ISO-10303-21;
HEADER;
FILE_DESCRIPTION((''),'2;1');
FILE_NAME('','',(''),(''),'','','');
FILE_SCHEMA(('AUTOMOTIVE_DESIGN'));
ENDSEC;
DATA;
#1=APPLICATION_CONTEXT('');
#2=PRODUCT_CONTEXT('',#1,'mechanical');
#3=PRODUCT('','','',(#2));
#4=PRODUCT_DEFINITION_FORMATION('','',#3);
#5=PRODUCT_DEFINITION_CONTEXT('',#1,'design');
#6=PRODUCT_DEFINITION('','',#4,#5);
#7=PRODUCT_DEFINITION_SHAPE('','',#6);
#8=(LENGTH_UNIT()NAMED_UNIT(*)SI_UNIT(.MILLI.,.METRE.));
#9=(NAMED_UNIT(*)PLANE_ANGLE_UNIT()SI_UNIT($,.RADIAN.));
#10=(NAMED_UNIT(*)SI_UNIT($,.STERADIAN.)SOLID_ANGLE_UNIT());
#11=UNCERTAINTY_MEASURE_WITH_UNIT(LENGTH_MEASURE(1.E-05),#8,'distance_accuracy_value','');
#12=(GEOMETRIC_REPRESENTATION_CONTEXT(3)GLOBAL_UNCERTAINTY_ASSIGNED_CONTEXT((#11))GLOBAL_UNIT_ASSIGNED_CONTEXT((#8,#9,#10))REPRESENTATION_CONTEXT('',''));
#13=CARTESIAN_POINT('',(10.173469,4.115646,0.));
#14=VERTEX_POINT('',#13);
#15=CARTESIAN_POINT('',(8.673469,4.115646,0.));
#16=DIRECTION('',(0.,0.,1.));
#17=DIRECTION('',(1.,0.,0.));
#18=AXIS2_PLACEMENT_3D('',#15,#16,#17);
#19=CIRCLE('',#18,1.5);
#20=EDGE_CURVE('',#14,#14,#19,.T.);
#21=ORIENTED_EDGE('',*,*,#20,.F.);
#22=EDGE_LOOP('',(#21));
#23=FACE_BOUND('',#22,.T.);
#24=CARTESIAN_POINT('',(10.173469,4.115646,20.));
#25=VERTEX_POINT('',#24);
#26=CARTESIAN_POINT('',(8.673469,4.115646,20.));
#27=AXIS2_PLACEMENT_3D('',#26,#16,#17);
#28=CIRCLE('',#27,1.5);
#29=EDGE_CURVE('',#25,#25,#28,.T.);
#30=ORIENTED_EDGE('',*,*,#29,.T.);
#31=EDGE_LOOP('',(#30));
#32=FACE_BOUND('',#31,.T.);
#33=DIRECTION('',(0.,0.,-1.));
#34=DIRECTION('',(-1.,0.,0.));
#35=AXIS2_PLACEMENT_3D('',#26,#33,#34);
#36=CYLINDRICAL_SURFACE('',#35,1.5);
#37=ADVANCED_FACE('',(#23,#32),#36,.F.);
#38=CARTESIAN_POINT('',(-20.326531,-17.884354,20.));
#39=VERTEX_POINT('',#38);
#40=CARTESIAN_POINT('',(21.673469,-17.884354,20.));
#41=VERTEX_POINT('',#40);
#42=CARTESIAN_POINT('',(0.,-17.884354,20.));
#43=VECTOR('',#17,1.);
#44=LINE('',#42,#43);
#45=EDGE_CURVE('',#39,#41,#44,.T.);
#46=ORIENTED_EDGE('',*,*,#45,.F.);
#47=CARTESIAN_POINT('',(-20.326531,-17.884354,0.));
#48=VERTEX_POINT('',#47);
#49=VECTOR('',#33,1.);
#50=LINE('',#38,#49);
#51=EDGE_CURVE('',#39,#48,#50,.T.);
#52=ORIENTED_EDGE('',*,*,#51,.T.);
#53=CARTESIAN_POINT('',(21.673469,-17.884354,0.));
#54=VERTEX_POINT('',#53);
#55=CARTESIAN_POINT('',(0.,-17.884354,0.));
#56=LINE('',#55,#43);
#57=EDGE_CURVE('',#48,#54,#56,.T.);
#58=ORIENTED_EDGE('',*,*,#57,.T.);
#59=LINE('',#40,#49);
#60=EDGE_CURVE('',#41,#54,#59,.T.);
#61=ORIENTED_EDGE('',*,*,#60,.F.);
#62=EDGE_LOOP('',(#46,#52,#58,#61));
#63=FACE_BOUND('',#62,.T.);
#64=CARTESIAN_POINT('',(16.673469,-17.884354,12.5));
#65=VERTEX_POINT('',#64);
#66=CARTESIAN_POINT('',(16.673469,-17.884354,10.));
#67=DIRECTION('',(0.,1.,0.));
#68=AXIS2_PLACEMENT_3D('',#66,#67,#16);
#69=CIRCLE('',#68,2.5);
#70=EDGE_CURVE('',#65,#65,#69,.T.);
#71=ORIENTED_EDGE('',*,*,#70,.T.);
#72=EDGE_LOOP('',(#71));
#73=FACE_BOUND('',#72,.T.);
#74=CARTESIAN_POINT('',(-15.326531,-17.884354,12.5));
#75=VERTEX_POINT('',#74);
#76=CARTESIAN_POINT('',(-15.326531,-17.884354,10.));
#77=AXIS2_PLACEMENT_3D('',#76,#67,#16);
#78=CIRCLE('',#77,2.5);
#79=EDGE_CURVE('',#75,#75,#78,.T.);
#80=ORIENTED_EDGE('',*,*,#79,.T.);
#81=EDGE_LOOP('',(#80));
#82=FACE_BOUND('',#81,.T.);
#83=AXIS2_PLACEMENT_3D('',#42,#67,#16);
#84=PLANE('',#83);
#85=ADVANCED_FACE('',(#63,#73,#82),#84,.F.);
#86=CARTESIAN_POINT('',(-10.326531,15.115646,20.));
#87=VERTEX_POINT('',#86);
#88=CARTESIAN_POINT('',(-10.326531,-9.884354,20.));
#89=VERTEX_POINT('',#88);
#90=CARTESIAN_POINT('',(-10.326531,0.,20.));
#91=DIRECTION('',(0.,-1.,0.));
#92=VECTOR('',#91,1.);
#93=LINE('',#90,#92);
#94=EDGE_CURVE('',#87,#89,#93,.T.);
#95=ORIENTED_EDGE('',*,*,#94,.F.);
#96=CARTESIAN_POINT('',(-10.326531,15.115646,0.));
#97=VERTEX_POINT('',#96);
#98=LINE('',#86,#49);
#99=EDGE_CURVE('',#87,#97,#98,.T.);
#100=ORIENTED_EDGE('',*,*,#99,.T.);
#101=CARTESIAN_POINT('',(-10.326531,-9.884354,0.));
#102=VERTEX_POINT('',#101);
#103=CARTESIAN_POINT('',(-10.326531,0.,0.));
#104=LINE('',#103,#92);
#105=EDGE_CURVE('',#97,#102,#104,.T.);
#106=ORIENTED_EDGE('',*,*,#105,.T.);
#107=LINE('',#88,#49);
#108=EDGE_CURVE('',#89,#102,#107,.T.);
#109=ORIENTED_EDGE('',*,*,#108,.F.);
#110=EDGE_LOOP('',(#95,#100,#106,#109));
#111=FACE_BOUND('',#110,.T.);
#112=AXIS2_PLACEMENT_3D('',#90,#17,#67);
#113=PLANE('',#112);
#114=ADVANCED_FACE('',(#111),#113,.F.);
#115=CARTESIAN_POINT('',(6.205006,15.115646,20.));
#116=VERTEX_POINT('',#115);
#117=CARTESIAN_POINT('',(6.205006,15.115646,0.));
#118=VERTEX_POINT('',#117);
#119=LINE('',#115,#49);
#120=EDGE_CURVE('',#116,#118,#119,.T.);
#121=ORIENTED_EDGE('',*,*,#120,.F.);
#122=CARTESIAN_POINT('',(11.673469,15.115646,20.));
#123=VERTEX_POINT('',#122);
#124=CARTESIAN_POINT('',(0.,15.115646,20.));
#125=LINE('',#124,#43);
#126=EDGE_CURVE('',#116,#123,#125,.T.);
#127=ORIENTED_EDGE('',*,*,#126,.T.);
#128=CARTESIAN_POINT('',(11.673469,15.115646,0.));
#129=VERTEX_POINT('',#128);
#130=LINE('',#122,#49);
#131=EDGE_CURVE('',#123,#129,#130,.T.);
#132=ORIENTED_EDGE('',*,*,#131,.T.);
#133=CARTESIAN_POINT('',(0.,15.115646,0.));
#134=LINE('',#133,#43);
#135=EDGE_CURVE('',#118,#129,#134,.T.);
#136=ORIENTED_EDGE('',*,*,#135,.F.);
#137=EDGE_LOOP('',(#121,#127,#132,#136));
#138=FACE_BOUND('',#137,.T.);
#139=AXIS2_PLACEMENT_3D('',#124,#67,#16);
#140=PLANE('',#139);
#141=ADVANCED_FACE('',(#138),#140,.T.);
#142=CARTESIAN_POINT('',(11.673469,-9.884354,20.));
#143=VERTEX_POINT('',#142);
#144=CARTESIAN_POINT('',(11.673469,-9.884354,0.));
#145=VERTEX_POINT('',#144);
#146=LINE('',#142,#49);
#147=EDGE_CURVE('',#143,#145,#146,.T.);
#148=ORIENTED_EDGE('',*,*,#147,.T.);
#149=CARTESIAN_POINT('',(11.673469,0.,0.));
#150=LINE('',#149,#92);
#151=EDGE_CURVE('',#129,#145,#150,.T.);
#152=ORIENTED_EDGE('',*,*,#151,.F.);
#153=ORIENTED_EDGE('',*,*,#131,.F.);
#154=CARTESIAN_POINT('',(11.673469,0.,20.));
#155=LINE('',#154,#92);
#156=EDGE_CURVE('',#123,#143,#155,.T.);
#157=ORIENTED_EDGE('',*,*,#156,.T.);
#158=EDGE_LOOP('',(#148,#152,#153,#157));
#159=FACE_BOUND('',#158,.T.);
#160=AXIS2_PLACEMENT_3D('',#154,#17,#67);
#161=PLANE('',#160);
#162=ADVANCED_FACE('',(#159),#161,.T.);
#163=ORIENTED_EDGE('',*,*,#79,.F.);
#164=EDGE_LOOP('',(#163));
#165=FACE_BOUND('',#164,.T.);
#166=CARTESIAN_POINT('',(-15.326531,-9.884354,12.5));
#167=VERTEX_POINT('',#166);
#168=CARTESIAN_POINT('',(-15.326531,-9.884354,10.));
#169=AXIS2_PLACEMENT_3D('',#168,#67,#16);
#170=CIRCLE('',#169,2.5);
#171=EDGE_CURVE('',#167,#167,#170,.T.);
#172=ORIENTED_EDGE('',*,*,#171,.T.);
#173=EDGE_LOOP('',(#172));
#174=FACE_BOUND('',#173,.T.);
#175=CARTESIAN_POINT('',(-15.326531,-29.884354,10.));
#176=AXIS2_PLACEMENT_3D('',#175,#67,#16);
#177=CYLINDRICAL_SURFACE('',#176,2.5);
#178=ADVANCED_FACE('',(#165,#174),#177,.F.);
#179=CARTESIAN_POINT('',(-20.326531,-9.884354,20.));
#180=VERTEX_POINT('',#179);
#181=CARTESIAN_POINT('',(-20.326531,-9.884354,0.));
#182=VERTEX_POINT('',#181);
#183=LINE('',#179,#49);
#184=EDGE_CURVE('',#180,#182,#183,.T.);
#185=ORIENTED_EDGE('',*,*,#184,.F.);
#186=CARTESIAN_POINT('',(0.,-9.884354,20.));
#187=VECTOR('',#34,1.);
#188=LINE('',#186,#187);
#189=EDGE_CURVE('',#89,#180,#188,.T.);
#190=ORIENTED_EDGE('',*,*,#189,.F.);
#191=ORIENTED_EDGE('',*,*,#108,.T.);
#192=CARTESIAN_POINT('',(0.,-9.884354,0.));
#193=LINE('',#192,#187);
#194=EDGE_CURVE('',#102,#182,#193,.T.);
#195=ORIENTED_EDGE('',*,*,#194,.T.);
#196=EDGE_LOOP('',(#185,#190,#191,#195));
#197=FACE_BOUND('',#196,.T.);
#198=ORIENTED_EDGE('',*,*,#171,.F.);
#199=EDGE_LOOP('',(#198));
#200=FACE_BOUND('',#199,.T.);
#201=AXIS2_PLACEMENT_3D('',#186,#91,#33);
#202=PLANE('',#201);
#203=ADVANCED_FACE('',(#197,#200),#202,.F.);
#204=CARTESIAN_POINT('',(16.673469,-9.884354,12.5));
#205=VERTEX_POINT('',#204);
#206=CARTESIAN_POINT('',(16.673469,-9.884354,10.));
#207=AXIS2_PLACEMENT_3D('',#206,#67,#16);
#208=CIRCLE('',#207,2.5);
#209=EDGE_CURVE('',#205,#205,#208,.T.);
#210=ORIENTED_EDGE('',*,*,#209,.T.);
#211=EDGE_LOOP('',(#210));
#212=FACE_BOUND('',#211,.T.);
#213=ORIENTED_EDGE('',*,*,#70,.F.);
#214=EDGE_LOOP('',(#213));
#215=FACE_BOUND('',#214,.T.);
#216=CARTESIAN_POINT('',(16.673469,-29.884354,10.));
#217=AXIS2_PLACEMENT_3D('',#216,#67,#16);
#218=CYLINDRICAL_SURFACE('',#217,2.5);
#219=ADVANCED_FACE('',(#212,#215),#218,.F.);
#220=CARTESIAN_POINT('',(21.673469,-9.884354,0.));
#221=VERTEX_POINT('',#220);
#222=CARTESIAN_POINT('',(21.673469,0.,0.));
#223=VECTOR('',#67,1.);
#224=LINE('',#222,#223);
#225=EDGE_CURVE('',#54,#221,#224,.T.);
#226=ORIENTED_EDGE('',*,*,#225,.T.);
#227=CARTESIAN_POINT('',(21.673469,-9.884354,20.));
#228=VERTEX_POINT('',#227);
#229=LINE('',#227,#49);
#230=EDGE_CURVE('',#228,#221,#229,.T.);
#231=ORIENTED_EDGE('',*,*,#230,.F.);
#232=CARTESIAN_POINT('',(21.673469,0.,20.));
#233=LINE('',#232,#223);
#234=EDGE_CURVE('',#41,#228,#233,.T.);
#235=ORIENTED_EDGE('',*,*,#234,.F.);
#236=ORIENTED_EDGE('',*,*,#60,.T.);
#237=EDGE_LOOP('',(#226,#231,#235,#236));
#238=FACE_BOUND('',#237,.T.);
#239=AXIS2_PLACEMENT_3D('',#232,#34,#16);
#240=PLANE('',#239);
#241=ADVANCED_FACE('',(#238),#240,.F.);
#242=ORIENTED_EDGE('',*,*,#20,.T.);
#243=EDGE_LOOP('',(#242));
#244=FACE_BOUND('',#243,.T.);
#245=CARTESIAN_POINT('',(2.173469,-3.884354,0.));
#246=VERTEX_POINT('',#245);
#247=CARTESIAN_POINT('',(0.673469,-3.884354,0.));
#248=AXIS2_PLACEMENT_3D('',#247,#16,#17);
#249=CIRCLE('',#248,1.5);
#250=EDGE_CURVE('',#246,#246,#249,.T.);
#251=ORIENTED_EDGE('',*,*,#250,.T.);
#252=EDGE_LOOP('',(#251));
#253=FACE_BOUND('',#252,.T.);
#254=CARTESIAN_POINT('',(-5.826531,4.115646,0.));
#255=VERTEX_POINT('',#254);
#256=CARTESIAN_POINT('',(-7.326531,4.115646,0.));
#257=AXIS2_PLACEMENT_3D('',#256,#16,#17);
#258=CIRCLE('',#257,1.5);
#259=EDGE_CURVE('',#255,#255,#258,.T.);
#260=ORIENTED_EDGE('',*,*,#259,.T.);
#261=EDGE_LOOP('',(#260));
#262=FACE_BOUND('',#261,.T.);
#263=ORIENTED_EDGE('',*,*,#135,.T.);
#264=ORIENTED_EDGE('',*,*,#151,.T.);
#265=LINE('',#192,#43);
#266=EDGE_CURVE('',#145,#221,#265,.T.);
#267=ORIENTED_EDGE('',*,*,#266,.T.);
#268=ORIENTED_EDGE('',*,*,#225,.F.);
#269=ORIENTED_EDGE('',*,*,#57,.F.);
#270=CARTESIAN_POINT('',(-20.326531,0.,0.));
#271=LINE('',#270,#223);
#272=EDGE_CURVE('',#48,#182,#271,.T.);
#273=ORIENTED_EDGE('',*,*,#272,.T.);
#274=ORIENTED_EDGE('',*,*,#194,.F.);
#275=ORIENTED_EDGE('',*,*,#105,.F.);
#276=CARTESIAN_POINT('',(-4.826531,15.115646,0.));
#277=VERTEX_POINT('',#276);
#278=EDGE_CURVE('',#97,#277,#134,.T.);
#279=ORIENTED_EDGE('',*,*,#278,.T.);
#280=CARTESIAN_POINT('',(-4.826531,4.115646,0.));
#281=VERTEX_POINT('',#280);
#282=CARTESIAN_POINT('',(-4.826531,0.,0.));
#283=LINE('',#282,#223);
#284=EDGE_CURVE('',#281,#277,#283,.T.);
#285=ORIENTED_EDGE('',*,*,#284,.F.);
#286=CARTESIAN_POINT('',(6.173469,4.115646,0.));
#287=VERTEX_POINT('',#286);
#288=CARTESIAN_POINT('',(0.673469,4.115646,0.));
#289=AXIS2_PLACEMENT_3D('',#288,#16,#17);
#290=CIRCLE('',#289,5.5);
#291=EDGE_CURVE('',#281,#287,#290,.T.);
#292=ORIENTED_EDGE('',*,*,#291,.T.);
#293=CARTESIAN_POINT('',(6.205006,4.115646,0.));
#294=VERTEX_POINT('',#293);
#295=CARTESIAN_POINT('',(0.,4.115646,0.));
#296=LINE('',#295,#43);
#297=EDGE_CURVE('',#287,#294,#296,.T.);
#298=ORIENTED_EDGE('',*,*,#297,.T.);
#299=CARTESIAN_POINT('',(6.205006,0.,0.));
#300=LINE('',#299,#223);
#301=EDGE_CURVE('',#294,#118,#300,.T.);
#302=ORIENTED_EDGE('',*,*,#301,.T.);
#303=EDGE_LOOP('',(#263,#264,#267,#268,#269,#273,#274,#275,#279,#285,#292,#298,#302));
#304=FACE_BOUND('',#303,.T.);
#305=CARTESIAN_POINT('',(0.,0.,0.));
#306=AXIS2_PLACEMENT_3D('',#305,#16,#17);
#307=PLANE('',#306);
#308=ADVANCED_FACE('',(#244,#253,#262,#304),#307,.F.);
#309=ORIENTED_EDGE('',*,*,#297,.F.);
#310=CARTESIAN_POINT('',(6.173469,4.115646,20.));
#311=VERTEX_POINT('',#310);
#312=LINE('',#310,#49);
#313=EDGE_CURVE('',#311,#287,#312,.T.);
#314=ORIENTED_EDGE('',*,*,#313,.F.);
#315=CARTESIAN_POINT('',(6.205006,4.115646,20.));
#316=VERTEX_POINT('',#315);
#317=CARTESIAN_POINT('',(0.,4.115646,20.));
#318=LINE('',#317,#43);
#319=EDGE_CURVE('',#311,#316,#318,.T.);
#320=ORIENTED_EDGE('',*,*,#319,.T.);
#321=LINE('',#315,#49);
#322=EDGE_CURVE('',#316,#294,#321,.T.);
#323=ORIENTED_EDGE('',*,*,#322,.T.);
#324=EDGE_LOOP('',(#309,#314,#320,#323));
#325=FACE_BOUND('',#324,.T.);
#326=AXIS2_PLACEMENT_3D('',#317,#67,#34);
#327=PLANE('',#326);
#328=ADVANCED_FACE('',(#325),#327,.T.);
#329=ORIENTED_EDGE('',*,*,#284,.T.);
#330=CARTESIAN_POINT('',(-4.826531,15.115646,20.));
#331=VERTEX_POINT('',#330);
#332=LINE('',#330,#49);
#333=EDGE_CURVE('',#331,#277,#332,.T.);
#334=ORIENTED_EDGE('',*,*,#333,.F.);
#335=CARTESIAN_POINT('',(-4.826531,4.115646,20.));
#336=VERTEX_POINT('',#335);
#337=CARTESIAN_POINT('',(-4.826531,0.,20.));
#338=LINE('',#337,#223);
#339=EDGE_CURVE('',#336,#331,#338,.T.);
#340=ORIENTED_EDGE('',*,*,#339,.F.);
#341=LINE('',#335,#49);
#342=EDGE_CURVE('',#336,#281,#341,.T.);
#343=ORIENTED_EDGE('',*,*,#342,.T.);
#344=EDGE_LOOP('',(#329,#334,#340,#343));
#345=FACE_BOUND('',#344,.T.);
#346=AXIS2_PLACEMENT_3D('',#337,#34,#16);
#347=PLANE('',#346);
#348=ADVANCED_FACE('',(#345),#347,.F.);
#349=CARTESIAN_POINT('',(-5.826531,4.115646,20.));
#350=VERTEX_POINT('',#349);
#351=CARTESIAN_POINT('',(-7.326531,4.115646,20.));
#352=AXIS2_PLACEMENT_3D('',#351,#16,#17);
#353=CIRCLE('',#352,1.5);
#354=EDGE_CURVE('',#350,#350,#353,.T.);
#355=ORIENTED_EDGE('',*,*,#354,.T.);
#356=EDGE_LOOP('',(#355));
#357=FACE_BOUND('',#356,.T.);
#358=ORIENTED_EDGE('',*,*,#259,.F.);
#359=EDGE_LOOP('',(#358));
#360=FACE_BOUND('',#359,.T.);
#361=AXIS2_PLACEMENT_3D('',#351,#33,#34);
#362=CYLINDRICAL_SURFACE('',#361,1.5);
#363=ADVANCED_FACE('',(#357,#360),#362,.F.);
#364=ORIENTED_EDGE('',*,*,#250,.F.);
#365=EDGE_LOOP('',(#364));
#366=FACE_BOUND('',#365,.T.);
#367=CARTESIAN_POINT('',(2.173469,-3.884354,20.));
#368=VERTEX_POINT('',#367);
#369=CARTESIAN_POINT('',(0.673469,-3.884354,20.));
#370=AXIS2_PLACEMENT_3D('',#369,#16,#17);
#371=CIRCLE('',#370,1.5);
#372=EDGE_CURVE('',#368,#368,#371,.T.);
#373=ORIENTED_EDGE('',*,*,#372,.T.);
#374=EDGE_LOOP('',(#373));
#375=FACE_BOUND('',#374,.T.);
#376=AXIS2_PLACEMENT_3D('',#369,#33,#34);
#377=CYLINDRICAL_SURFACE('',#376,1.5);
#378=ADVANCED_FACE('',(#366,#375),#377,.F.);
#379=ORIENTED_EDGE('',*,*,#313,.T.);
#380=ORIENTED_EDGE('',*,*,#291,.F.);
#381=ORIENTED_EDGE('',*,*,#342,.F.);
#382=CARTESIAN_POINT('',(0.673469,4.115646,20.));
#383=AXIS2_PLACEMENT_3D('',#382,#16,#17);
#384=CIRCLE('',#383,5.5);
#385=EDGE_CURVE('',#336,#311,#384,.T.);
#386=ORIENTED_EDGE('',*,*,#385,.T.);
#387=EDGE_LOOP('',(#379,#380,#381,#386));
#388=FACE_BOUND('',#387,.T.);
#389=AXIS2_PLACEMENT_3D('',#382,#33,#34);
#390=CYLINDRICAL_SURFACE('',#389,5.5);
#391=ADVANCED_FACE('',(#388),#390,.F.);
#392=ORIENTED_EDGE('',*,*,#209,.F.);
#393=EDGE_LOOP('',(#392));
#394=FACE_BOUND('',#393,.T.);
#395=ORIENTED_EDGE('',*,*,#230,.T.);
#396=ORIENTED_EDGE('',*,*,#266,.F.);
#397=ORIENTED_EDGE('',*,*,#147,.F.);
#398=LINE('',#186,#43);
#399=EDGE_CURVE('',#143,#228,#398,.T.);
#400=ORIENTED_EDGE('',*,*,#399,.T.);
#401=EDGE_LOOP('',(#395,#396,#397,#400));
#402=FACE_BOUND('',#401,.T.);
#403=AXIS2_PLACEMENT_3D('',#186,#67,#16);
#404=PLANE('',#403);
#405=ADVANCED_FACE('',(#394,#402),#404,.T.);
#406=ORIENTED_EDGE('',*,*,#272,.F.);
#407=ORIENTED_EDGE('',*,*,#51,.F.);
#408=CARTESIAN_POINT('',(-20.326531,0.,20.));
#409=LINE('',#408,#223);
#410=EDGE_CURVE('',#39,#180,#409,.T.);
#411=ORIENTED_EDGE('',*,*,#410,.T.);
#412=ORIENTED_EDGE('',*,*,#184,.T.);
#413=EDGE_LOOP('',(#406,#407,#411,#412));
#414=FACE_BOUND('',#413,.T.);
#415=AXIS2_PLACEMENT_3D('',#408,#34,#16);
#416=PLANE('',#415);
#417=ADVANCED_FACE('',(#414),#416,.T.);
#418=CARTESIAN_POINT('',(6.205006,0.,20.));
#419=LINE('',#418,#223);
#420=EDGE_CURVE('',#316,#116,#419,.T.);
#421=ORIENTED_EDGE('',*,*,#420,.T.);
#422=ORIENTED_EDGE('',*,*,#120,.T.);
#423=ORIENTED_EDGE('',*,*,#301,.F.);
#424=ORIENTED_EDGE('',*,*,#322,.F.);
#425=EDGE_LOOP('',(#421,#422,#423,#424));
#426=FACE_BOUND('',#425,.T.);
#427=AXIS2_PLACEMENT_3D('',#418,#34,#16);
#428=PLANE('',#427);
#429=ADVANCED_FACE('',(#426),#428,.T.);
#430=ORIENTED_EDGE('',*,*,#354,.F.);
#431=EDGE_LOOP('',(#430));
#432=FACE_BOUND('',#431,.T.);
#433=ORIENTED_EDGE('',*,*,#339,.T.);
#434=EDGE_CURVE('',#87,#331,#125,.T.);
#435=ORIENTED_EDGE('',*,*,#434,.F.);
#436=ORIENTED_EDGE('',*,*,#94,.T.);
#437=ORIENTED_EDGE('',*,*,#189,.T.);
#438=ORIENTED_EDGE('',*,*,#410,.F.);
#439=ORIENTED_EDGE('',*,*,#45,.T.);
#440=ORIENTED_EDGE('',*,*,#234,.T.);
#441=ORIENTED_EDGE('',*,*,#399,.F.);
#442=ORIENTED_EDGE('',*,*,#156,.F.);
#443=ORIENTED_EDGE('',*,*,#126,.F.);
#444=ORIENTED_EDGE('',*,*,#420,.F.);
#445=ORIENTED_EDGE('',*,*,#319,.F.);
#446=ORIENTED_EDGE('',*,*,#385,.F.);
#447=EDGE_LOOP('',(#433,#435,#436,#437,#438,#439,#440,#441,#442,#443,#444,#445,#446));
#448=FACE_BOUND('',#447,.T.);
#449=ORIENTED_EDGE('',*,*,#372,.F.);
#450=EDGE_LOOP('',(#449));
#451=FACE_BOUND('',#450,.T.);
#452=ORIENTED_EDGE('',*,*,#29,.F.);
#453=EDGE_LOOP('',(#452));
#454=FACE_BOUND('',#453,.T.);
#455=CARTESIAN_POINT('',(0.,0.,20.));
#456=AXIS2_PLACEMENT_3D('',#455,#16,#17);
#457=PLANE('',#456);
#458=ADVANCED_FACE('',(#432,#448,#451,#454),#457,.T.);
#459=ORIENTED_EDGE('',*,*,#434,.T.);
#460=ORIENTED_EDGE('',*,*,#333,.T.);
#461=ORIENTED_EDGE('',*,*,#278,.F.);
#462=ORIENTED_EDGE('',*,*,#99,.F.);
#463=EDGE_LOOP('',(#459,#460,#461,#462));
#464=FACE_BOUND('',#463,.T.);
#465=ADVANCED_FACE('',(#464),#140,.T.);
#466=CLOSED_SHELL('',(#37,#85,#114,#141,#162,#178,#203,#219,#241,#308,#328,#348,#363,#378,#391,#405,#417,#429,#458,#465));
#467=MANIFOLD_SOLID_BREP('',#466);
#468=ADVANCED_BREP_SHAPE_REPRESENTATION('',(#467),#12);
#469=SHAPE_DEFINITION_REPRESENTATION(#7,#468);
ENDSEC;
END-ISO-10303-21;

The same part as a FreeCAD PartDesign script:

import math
import FreeCAD as App
import Part
import Sketcher

V = App.Vector

doc = App.newDocument("Part")
body = doc.addObject("PartDesign::Body", "Body")

# Sketch on XY plane
sketch1 = body.newObject("Sketcher::SketchObject", "Sketch")
sketch1.AttachmentSupport = (doc.getObject("XY_Plane"), [""])
sketch1.MapMode = "FlatFace"
sketch1.addGeometry([
    Part.LineSegment(V(-4.827, 15.116, 0), V(-10.327, 15.116, 0)),  # 0
    Part.LineSegment(V(-10.327, 15.116, 0), V(-10.327, -9.884, 0)),  # 1
    Part.LineSegment(V(-10.327, -9.884, 0), V(-20.327, -9.884, 0)),  # 2
    Part.LineSegment(V(-20.327, -9.884, 0), V(-20.327, -17.884, 0)),  # 3
    Part.LineSegment(V(-20.327, -17.884, 0), V(21.673, -17.884, 0)),  # 4
    Part.LineSegment(V(21.673, -17.884, 0), V(21.673, -9.884, 0)),  # 5
    Part.LineSegment(V(21.673, -9.884, 0), V(11.673, -9.884, 0)),  # 6
    Part.LineSegment(V(11.673, -9.884, 0), V(11.673, 15.116, 0)),  # 7
    Part.LineSegment(V(11.673, 15.116, 0), V(6.205, 15.116, 0)),  # 8
    Part.LineSegment(V(6.205, 15.116, 0), V(6.205, 4.116, 0)),  # 9
    Part.LineSegment(V(6.205, 4.116, 0), V(6.173, 4.116, 0)),  # 10
    Part.ArcOfCircle(Part.Circle(V(0.673, 4.116, 0), V(0, 0, 1), 5.5), math.radians(180), math.radians(360)),  # 11
    Part.LineSegment(V(-4.827, 4.116, 0), V(-4.827, 15.116, 0)),  # 12
    Part.Circle(V(0.673, -3.884, 0), V(0, 0, 1), 1.5),  # 13
    Part.Circle(V(-7.327, 4.116, 0), V(0, 0, 1), 1.5),  # 14
    Part.Circle(V(8.673, 4.116, 0), V(0, 0, 1), 1.5),  # 15
], False)
sketch1.addConstraint([
    Sketcher.Constraint("Coincident", 0, 2, 1, 1),
    Sketcher.Constraint("Coincident", 1, 2, 2, 1),
    Sketcher.Constraint("Coincident", 2, 2, 3, 1),
    Sketcher.Constraint("Coincident", 3, 2, 4, 1),
    Sketcher.Constraint("Coincident", 4, 2, 5, 1),
    Sketcher.Constraint("Coincident", 5, 2, 6, 1),
    Sketcher.Constraint("Coincident", 6, 2, 7, 1),
    Sketcher.Constraint("Coincident", 7, 2, 8, 1),
    Sketcher.Constraint("Coincident", 8, 2, 9, 1),
    Sketcher.Constraint("Coincident", 9, 2, 10, 1),
    Sketcher.Constraint("Coincident", 10, 2, 11, 2),
    Sketcher.Constraint("Tangent", 11, 1, 12, 1),
    Sketcher.Constraint("Coincident", 12, 2, 0, 1),
    Sketcher.Constraint("Horizontal", 0),
    Sketcher.Constraint("Vertical", 1),
    Sketcher.Constraint("Horizontal", 2),
    Sketcher.Constraint("Vertical", 3),
    Sketcher.Constraint("Horizontal", 4),
    Sketcher.Constraint("Vertical", 5),
    Sketcher.Constraint("Horizontal", 6),
    Sketcher.Constraint("Vertical", 7),
    Sketcher.Constraint("Horizontal", 8),
    Sketcher.Constraint("Vertical", 9),
    Sketcher.Constraint("Horizontal", 10),
    Sketcher.Constraint("Vertical", 12),
    Sketcher.Constraint("Equal", 13, 14),
    Sketcher.Constraint("Equal", 14, 15),
    Sketcher.Constraint("Horizontal", 11, 3, 14, 3),
    Sketcher.Constraint("Horizontal", 14, 3, 15, 3),
    Sketcher.Constraint("Horizontal", 2, 2, 5, 2),
    Sketcher.Constraint("Horizontal", 0, 2, 7, 2),
    Sketcher.Constraint("Horizontal", 15, 3, 9, 2),
    Sketcher.Constraint("Vertical", 11, 3, 13, 3),
    Sketcher.Constraint("Equal", 2, 6),
    Sketcher.Constraint("Diameter", 13, 3.0),
    Sketcher.Constraint("Radius", 11, 5.5),
    Sketcher.Constraint("DistanceX", 2, 2, 2, 1, 10.0),
    Sketcher.Constraint("DistanceX", 4, 1, 4, 2, 42.0),
    Sketcher.Constraint("DistanceY", 1, 2, 1, 1, 25.0),
    Sketcher.Constraint("DistanceY", 3, 2, 3, 1, 8.0),
    Sketcher.Constraint("DistanceY", 9, 2, 9, 1, 11.0),
    Sketcher.Constraint("DistanceX", 0, 2, 0, 1, 5.5),
    Sketcher.Constraint("DistanceY", 13, 3, 11, 3, 8.0),
    Sketcher.Constraint("DistanceX", 14, 3, 11, 3, 8.0),
    Sketcher.Constraint("DistanceX", 11, 3, 15, 3, 8.0),
    Sketcher.Constraint("DistanceX", 8, 2, 8, 1, 5.468463),
    Sketcher.Constraint("DistanceX", -1, 1, 11, 3, 0.673469),
    Sketcher.Constraint("DistanceY", -1, 1, 11, 3, 4.115646),
])
pad1 = body.newObject("PartDesign::Pad", "Pad")
pad1.Profile = sketch1
pad1.Length = 20

# Sketch on XZ plane
sketch2 = body.newObject("Sketcher::SketchObject", "Sketch001")
sketch2.AttachmentSupport = (doc.getObject("XZ_Plane"), [""])
sketch2.MapMode = "FlatFace"
sketch2.AttachmentOffset = App.Placement(V(0, 0, 9.884354), App.Rotation())
sketch2.addGeometry([
    Part.Circle(V(16.7, 10, 0), V(0, 0, 1), 2.5),
    Part.Circle(V(-15.3, 10, 0), V(0, 0, 1), 2.5),
], False)
sketch2.addConstraint([
    Sketcher.Constraint("Equal", 0, 1),
    Sketcher.Constraint("Horizontal", 0, 3, 1, 3),
    Sketcher.Constraint("Diameter", 0, 5.0),
    Sketcher.Constraint("DistanceY", -1, 1, 0, 3, 10.0),
    Sketcher.Constraint("DistanceX", 1, 3, 0, 3, 32.0),
    Sketcher.Constraint("DistanceX", -1, 1, 0, 3, 16.673469),
])
pocket1 = body.newObject("PartDesign::Pocket", "Pocket")
pocket1.Profile = sketch2
pocket1.Length = 20
pocket1.Reversed = True

doc.recompute()
